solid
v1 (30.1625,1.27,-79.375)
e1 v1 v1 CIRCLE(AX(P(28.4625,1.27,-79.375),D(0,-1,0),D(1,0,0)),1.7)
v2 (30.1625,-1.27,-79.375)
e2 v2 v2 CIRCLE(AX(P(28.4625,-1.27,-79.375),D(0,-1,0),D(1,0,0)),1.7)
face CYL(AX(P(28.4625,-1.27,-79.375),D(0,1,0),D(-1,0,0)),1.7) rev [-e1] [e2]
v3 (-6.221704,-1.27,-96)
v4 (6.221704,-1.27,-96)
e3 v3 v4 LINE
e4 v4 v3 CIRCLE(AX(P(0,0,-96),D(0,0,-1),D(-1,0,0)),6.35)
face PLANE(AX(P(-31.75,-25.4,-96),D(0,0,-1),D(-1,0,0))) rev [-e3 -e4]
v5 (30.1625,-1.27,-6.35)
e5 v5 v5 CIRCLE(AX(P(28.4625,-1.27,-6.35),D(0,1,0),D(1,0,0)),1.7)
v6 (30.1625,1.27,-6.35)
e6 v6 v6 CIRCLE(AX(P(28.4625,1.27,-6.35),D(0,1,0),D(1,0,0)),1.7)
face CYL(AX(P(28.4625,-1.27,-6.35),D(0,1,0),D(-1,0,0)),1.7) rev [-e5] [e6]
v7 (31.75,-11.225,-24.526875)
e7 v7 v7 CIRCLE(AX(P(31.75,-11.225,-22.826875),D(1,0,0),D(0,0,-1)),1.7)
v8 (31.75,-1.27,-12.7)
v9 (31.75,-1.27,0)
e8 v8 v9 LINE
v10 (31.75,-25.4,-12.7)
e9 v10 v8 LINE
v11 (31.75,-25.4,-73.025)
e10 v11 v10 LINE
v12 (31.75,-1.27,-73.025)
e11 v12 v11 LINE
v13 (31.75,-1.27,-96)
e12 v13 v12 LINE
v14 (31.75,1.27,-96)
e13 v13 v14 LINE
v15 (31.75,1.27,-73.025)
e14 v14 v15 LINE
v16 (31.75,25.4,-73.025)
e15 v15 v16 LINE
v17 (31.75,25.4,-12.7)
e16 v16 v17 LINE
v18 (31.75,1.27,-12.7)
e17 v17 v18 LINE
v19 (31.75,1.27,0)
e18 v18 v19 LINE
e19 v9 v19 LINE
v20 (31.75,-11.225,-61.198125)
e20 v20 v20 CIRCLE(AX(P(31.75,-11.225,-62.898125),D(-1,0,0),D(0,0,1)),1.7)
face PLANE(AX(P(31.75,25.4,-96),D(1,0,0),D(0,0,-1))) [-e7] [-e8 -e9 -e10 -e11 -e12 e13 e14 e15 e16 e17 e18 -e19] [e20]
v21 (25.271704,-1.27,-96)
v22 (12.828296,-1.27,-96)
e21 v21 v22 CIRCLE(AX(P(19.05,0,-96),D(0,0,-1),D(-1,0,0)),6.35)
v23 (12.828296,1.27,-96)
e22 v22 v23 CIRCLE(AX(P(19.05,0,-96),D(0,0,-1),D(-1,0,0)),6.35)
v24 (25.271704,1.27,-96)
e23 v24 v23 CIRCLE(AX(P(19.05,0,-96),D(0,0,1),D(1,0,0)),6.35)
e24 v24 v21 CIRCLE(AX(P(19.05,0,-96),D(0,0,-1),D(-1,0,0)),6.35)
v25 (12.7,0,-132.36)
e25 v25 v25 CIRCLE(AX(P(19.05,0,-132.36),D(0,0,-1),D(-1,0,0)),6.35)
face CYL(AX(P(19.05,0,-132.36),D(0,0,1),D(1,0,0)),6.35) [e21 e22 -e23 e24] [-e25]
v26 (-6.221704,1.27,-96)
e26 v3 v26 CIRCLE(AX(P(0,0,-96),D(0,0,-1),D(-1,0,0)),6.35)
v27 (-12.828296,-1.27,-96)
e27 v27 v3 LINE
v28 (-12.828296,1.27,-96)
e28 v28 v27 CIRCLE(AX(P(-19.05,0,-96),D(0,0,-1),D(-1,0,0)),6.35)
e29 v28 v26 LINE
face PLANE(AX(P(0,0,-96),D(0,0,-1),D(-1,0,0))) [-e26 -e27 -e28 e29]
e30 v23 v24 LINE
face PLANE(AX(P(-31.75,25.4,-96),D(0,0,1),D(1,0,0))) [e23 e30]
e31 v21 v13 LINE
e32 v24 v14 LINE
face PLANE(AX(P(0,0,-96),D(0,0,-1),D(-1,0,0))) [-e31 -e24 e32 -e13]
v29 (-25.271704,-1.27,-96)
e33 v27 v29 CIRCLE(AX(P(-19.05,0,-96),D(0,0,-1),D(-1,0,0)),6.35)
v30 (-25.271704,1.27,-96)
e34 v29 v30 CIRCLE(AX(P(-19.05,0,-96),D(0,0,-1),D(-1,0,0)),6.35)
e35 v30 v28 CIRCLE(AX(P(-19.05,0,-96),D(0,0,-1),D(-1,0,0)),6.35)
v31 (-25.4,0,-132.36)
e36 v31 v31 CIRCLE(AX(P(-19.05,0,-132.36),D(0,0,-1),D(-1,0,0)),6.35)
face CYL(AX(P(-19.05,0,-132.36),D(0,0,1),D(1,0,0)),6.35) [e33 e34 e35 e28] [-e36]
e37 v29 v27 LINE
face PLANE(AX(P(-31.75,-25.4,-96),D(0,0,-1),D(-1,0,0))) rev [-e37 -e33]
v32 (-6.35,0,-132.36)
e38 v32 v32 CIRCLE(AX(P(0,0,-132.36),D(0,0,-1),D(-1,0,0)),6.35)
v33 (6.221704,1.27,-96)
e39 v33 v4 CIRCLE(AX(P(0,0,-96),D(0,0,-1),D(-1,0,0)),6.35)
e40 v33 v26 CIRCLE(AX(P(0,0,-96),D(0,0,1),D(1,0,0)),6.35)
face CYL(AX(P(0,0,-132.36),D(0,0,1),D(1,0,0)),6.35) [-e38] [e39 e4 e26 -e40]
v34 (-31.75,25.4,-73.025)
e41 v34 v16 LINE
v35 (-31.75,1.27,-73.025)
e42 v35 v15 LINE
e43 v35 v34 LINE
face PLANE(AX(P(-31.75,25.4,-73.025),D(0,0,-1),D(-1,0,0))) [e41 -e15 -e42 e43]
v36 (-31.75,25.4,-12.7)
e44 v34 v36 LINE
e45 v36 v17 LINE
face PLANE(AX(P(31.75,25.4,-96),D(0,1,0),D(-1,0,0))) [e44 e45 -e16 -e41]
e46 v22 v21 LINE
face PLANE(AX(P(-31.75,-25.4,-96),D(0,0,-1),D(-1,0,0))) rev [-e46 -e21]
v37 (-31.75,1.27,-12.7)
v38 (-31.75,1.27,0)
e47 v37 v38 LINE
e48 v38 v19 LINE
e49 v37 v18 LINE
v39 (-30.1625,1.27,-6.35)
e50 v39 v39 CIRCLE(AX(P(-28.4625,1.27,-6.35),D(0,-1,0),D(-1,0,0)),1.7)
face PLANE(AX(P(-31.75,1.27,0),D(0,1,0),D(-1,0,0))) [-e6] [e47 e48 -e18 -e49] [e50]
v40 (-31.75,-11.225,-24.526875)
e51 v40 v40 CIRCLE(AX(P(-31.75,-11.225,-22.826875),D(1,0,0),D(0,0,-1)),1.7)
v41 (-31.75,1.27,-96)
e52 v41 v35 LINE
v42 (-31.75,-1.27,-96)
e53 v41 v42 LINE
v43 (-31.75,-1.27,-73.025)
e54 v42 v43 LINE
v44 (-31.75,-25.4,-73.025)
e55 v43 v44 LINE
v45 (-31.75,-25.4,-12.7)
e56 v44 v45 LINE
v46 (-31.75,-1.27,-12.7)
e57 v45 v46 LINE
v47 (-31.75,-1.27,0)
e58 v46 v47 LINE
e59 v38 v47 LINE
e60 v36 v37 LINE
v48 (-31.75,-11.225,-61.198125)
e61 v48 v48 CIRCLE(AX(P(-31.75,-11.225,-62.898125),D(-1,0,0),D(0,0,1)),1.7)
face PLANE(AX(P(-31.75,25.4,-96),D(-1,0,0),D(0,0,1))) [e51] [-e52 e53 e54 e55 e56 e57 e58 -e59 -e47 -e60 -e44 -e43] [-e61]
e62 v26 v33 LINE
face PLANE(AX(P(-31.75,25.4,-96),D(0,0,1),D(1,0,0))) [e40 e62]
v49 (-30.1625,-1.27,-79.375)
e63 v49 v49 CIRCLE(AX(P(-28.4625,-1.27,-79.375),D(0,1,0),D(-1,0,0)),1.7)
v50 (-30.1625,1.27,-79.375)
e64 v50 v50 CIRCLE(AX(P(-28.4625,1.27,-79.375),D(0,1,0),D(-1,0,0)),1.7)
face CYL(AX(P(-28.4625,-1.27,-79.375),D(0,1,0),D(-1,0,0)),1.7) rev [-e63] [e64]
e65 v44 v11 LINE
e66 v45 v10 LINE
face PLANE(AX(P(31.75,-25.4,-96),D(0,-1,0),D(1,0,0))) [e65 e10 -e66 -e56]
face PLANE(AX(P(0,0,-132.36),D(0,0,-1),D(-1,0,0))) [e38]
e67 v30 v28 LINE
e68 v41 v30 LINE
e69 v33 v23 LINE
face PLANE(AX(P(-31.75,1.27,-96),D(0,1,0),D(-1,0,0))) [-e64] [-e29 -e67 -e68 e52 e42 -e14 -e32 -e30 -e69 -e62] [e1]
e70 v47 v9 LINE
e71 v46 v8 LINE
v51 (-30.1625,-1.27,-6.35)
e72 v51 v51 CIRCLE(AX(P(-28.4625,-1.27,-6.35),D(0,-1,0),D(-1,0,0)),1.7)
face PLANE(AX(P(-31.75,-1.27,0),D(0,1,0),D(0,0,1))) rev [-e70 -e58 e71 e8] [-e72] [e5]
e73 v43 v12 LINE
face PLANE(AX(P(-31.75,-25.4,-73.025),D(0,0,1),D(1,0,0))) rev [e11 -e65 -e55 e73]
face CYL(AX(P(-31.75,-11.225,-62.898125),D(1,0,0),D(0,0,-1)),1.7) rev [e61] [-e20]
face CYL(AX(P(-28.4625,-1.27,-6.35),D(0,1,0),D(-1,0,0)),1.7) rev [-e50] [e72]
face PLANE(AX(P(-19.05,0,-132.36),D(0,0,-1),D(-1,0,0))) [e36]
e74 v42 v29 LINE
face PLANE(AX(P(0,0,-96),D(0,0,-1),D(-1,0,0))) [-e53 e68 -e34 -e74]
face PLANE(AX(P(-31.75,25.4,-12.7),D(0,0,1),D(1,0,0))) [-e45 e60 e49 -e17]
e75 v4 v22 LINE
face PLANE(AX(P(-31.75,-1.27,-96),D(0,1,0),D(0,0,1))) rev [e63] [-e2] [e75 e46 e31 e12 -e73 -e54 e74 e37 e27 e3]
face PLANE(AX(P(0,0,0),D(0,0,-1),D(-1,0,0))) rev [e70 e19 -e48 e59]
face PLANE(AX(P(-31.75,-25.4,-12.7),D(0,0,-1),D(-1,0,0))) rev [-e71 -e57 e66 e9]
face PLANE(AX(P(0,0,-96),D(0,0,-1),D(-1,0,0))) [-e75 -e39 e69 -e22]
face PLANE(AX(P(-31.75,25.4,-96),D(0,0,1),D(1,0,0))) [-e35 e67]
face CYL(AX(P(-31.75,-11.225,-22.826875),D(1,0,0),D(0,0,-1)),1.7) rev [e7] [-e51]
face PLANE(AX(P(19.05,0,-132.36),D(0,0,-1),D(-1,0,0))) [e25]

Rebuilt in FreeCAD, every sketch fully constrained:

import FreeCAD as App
import Part
import Sketcher
from FreeCAD import Vector
Q = App.Units.Quantity

doc = App.newDocument("Part")
params = doc.addObject("Spreadsheet::Sheet", "Params")
for row, (alias, value) in enumerate([
    ("sketch1_height", "2 in"),
    ("sketch1_width", "2.5 in"),
    ("pad1_length", "96 mm"),
    ("sketch2_diameter", "0.5 in"),
    ("pad2_length", "36.36 mm"),
    ("sketch3_height", "0.5 in"),
    ("sketch3_width", "0.95 in"),
    ("pocket2_length", "0.1 in"),
    ("pocket3_length", "0.1 in"),
], start=1):
    params.set(f"A{row}", alias)
    params.set(f"B{row}", "=" + value)
    params.setAlias(f"B{row}", alias)

body = doc.addObject("PartDesign::Body", "Body")

sketch1 = body.newObject("Sketcher::SketchObject", "Sketch")
sketch1.AttachmentSupport = (doc.getObject("XY_Plane"), [""])
sketch1.MapMode = "FlatFace"
sketch1.addGeometry(Part.LineSegment(Vector(-32, 25, 0), Vector(-32, -25, 0)), False)
sketch1.addGeometry(Part.LineSegment(Vector(-32, -25, 0), Vector(32, -25, 0)), False)
sketch1.addGeometry(Part.LineSegment(Vector(32, -25, 0), Vector(32, 25, 0)), False)
sketch1.addGeometry(Part.LineSegment(Vector(32, 25, 0), Vector(-32, 25, 0)), False)
sketch1.addConstraint(Sketcher.Constraint("Coincident", 0, 2, 1, 1))
sketch1.addConstraint(Sketcher.Constraint("Coincident", 1, 2, 2, 1))
sketch1.addConstraint(Sketcher.Constraint("Coincident", 2, 2, 3, 1))
sketch1.addConstraint(Sketcher.Constraint("Coincident", 3, 2, 0, 1))
sketch1.addConstraint(Sketcher.Constraint("Vertical", 0))
sketch1.addConstraint(Sketcher.Constraint("Horizontal", 1))
sketch1.addConstraint(Sketcher.Constraint("Vertical", 2))
sketch1.addConstraint(Sketcher.Constraint("Horizontal", 3))
sketch1.addConstraint(Sketcher.Constraint("Symmetric", 0, 2, 2, 2, -1, 1))
sketch1.addConstraint(Sketcher.Constraint("DistanceY", 0, 2, 0, 1, Q("2 in")))
sketch1.addConstraint(Sketcher.Constraint("DistanceX", 1, 1, 1, 2, Q("2.5 in")))
sketch1.setExpression("Constraints[9]", "Params.sketch1_height")
sketch1.setExpression("Constraints[10]", "Params.sketch1_width")
pad1 = body.newObject("PartDesign::Pad", "Pad")
pad1.Profile = sketch1
pad1.setExpression("Length", "Params.pad1_length")
pad1.Reversed = True

sketch2 = body.newObject("Sketcher::SketchObject", "Sketch001")
sketch2.AttachmentSupport = (doc.getObject("XY_Plane"), [""])
sketch2.MapMode = "FlatFace"
sketch2.AttachmentOffset = App.Placement(Vector(0, 0, -96), App.Rotation())
sketch2.addGeometry(Part.Circle(Vector(0, 0, 0), Vector(0, 0, 1), 6), False)
sketch2.addGeometry(Part.Circle(Vector(19, 0, 0), Vector(0, 0, 1), 6), False)
sketch2.addGeometry(Part.Circle(Vector(-19, 0, 0), Vector(0, 0, 1), 6), False)
sketch2.addConstraint(Sketcher.Constraint("Coincident", 0, 3, -1, 1))
sketch2.addConstraint(Sketcher.Constraint("Equal", 0, 1))
sketch2.addConstraint(Sketcher.Constraint("Equal", 1, 2))
sketch2.addConstraint(Sketcher.Constraint("Symmetric", 1, 3, 2, 3, -1, 1))
sketch2.addConstraint(Sketcher.Constraint("PointOnObject", 1, 3, -1))
sketch2.addConstraint(Sketcher.Constraint("Diameter", 0, Q("0.5 in")))
sketch2.addConstraint(Sketcher.Constraint("DistanceX", 2, 3, 1, 3, Q("1.5 in")))
sketch2.setExpression("Constraints[5]", "Params.sketch2_diameter")
pad2 = body.newObject("PartDesign::Pad", "Pad001")
pad2.Profile = sketch2
pad2.setExpression("Length", "Params.pad2_length")
pad2.Reversed = True

sketch3 = body.newObject("Sketcher::SketchObject", "Sketch002")
sketch3.AttachmentSupport = (doc.getObject("YZ_Plane"), [""])
sketch3.MapMode = "FlatFace"
sketch3.AttachmentOffset = App.Placement(Vector(0, 0, 1.25 * 25.4), App.Rotation())
sketch3.addGeometry(Part.LineSegment(Vector(-1, 0, 0), Vector(-25, 0, 0)), False)
sketch3.addGeometry(Part.LineSegment(Vector(-25, 0, 0), Vector(-25, -13, 0)), False)
sketch3.addGeometry(Part.LineSegment(Vector(-25, -13, 0), Vector(-1, -13, 0)), False)
sketch3.addGeometry(Part.LineSegment(Vector(-1, -13, 0), Vector(-1, 0, 0)), False)
sketch3.addGeometry(Part.LineSegment(Vector(-1, -73, 0), Vector(-25, -73, 0)), False)
sketch3.addGeometry(Part.LineSegment(Vector(-25, -73, 0), Vector(-25, -96, 0)), False)
sketch3.addGeometry(Part.LineSegment(Vector(-25, -96, 0), Vector(-1, -96, 0)), False)
sketch3.addGeometry(Part.LineSegment(Vector(-1, -96, 0), Vector(-1, -73, 0)), False)
sketch3.addConstraint(Sketcher.Constraint("Coincident", 0, 2, 1, 1))
sketch3.addConstraint(Sketcher.Constraint("Coincident", 1, 2, 2, 1))
sketch3.addConstraint(Sketcher.Constraint("Coincident", 2, 2, 3, 1))
sketch3.addConstraint(Sketcher.Constraint("Coincident", 3, 2, 0, 1))
sketch3.addConstraint(Sketcher.Constraint("Coincident", 4, 2, 5, 1))
sketch3.addConstraint(Sketcher.Constraint("Coincident", 5, 2, 6, 1))
sketch3.addConstraint(Sketcher.Constraint("Coincident", 6, 2, 7, 1))
sketch3.addConstraint(Sketcher.Constraint("Coincident", 7, 2, 4, 1))
sketch3.addConstraint(Sketcher.Constraint("Horizontal", 0))
sketch3.addConstraint(Sketcher.Constraint("Vertical", 1))
sketch3.addConstraint(Sketcher.Constraint("Horizontal", 2))
sketch3.addConstraint(Sketcher.Constraint("Vertical", 3))
sketch3.addConstraint(Sketcher.Constraint("Horizontal", 4))
sketch3.addConstraint(Sketcher.Constraint("Vertical", 5))
sketch3.addConstraint(Sketcher.Constraint("Horizontal", 6))
sketch3.addConstraint(Sketcher.Constraint("Vertical", 7))
sketch3.addConstraint(Sketcher.Constraint("PointOnObject", 0, 2, -1))
sketch3.addConstraint(Sketcher.Constraint("Vertical", 1, 2, 4, 2))
sketch3.addConstraint(Sketcher.Constraint("Vertical", 3, 2, 6, 2))
sketch3.addConstraint(Sketcher.Constraint("DistanceY", 1, 2, 1, 1, Q("0.5 in")))
sketch3.addConstraint(Sketcher.Constraint("DistanceX", 0, 2, -1, 1, Q("1 in")))
sketch3.addConstraint(Sketcher.Constraint("DistanceX", 0, 2, 0, 1, Q("0.95 in")))
sketch3.addConstraint(Sketcher.Constraint("DistanceY", 4, 2, -1, 1, Q("2.875 in")))
sketch3.addConstraint(Sketcher.Constraint("DistanceY", 5, 2, 5, 1, Q("22.975 mm")))
sketch3.setExpression("Constraints[19]", "Params.sketch3_height")
sketch3.setExpression("Constraints[21]", "Params.sketch3_width")
pocket1 = body.newObject("PartDesign::Pocket", "Pocket")
pocket1.Profile = sketch3
pocket1.Type = "ThroughAll"
doc.recompute()

mirrored = body.newObject("PartDesign::Mirrored", "Mirrored")
mirrored.Originals = [pocket1]
mirrored.MirrorPlane = (doc.getObject("XZ_Plane"), [""])
body.Tip = mirrored

sketch4 = body.newObject("Sketcher::SketchObject", "Sketch003")
sketch4.AttachmentSupport = (doc.getObject("XZ_Plane"), [""])
sketch4.MapMode = "FlatFace"
sketch4.AttachmentOffset = App.Placement(Vector(0, 0, -0.05 * 25.4), App.Rotation())
sketch4.addGeometry(Part.Circle(Vector(-28.5, -79.4, 0), Vector(0, 0, 1), 1.7), False)
sketch4.addConstraint(Sketcher.Constraint("Diameter", 0, Q("3.4 mm")))
sketch4.addConstraint(Sketcher.Constraint("DistanceY", 0, 3, -1, 1, Q("3.125 in")))
sketch4.addConstraint(Sketcher.Constraint("DistanceX", 0, 3, -1, 1, Q("28.4625 mm")))
pocket2 = body.newObject("PartDesign::Pocket", "Pocket001")
pocket2.Profile = sketch4
pocket2.setExpression("Length", "Params.pocket2_length")
pocket2.Reversed = True
doc.recompute()

mirrored2 = body.newObject("PartDesign::Mirrored", "Mirrored001")
mirrored2.Originals = [pocket2]
mirrored2.MirrorPlane = (doc.getObject("YZ_Plane"), [""])
body.Tip = mirrored2
doc.recompute()

datumplane = body.newObject("PartDesign::Plane", "DatumPlane")
datumplane.AttachmentSupport = (doc.getObject("XY_Plane"), [""])
datumplane.MapMode = "FlatFace"
datumplane.AttachmentOffset = App.Placement(Vector(0, 0, -1.6875 * 25.4), App.Rotation())
mirrored3 = body.newObject("PartDesign::Mirrored", "Mirrored002")
mirrored3.Originals = [pocket2]
mirrored3.MirrorPlane = (datumplane, [""])
body.Tip = mirrored3

sketch5 = body.newObject("Sketcher::SketchObject", "Sketch004")
sketch5.AttachmentSupport = (doc.getObject("XZ_Plane"), [""])
sketch5.MapMode = "FlatFace"
sketch5.AttachmentOffset = App.Placement(Vector(0, 0, -0.05 * 25.4), App.Rotation())
sketch5.addGeometry(Part.Circle(Vector(28.5, -6.3, 0), Vector(0, 0, 1), 1.7), False)
sketch5.addConstraint(Sketcher.Constraint("Diameter", 0, Q("3.4 mm")))
sketch5.addConstraint(Sketcher.Constraint("DistanceY", 0, 3, -1, 1, Q("0.25 in")))
sketch5.addConstraint(Sketcher.Constraint("DistanceX", -1, 1, 0, 3, Q("28.4625 mm")))
pocket3 = body.newObject("PartDesign::Pocket", "Pocket002")
pocket3.Profile = sketch5
pocket3.setExpression("Length", "Params.pocket3_length")
pocket3.Reversed = True

sketch6 = body.newObject("Sketcher::SketchObject", "Sketch005")
sketch6.AttachmentSupport = (doc.getObject("YZ_Plane"), [""])
sketch6.MapMode = "FlatFace"
sketch6.AttachmentOffset = App.Placement(Vector(0, 0, 1.25 * 25.4), App.Rotation())
sketch6.addGeometry(Part.Circle(Vector(-11.2, -22.8, 0), Vector(0, 0, 1), 1.7), False)
sketch6.addConstraint(Sketcher.Constraint("Diameter", 0, Q("3.4 mm")))
sketch6.addConstraint(Sketcher.Constraint("DistanceX", 0, 3, -1, 1, Q("11.225 mm")))
sketch6.addConstraint(Sketcher.Constraint("DistanceY", 0, 3, -1, 1, Q("22.826875 mm")))
pocket4 = body.newObject("PartDesign::Pocket", "Pocket003")
pocket4.Profile = sketch6
pocket4.Type = "ThroughAll"
doc.recompute()

datumplane2 = body.newObject("PartDesign::Plane", "DatumPlane001")
datumplane2.AttachmentSupport = (doc.getObject("XY_Plane"), [""])
datumplane2.MapMode = "FlatFace"
datumplane2.AttachmentOffset = App.Placement(Vector(0, 0, -1.6875 * 25.4), App.Rotation())
mirrored4 = body.newObject("PartDesign::Mirrored", "Mirrored003")
mirrored4.Originals = [pocket4]
mirrored4.MirrorPlane = (datumplane2, [""])
body.Tip = mirrored4

doc.recompute()
